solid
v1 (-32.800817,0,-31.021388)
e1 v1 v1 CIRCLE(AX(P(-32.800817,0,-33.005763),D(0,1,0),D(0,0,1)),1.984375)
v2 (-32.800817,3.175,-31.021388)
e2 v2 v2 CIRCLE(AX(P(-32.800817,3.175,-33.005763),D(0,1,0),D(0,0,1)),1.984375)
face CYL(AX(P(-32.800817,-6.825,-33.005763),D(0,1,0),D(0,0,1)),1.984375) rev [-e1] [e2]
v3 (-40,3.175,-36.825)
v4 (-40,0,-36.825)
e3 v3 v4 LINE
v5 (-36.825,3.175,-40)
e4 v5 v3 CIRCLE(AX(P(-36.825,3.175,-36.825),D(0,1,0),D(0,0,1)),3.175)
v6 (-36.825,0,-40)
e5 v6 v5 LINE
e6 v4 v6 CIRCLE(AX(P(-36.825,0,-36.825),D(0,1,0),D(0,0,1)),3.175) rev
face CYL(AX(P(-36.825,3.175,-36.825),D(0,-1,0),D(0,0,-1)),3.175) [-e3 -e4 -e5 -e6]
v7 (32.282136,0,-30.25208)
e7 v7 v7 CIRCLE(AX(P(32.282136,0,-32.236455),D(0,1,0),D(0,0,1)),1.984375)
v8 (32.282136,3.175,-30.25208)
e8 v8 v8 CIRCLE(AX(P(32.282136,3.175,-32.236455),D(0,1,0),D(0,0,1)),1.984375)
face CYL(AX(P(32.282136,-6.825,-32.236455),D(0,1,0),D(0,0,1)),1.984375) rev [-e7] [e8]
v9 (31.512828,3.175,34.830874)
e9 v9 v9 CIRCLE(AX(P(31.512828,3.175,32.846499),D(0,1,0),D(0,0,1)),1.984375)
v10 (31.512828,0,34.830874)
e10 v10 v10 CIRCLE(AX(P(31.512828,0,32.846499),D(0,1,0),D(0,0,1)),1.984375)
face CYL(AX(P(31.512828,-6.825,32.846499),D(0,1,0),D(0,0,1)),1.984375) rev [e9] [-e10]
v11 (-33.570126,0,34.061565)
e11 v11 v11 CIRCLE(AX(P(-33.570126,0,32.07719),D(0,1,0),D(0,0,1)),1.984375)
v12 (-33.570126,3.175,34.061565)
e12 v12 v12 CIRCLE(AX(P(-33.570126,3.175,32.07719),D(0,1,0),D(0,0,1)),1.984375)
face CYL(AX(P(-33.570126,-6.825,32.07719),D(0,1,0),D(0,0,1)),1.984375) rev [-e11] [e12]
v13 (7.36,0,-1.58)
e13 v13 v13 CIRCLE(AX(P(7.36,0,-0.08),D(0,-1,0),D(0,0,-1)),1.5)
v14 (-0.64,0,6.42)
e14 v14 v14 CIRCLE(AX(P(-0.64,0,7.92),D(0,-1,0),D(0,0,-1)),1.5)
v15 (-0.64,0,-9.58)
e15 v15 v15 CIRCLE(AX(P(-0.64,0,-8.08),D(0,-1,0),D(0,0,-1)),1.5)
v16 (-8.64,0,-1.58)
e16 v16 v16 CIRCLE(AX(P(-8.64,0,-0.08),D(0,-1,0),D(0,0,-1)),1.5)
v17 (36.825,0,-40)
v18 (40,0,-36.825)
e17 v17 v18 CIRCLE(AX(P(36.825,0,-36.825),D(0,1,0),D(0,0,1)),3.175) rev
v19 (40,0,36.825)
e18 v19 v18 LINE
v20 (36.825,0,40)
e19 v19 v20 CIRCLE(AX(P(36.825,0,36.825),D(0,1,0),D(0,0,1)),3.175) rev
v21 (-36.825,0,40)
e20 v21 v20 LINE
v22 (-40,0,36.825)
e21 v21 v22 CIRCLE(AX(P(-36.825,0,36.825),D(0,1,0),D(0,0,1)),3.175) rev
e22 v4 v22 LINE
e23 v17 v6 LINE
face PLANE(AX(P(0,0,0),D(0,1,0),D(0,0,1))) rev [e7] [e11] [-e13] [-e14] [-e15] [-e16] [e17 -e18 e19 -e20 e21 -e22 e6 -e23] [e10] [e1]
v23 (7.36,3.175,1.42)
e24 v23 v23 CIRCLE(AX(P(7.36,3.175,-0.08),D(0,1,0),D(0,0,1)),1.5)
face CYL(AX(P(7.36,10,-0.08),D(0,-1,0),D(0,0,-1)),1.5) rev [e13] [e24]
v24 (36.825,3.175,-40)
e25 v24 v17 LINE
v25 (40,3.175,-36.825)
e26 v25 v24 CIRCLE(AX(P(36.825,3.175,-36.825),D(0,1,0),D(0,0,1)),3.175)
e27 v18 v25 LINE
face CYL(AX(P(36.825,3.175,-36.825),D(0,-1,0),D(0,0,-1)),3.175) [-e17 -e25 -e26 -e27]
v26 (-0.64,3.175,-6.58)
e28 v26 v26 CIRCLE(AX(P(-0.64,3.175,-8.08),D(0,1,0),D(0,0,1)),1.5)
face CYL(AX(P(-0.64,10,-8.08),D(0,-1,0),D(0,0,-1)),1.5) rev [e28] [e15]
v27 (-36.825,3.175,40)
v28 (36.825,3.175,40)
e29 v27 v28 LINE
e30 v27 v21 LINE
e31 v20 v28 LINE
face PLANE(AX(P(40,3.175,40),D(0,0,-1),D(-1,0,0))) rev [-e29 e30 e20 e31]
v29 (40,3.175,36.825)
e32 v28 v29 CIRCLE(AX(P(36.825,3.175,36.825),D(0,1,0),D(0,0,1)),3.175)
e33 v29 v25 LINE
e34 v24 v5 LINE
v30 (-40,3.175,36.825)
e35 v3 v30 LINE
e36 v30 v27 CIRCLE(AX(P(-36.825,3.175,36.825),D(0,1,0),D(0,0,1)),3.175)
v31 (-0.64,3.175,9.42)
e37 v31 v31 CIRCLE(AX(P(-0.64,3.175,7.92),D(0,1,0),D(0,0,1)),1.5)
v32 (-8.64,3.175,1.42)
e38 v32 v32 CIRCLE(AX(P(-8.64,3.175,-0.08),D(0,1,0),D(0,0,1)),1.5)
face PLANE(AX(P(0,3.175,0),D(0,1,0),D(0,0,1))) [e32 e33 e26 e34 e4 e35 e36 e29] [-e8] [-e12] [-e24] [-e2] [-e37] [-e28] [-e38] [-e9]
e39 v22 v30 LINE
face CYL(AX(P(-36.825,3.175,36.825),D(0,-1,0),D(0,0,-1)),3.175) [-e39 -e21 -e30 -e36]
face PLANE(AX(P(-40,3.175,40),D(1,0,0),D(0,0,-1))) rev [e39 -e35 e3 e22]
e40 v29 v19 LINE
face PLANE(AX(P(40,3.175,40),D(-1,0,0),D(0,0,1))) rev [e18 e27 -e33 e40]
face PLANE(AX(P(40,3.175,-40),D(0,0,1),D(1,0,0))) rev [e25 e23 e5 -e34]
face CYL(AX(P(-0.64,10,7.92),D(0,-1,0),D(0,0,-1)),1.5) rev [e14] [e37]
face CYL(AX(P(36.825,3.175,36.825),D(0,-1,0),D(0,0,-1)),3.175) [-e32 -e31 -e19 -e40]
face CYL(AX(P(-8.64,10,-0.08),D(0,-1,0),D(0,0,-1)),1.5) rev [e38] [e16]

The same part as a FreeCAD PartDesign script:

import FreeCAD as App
import Part
import Sketcher
from FreeCAD import Vector
Q = App.Units.Quantity


def edges_at(feature, points):
    """Names of the edges that pass closest to the given points."""
    edges = feature.Shape.Edges
    near = lambda p: min(range(len(edges)), key=lambda i: edges[i].distToShape(Part.Vertex(*p))[0])
    return sorted({f"Edge{near(p) + 1}" for p in points})

doc = App.newDocument("Part")
params = doc.addObject("Spreadsheet::Sheet", "Params")
for row, (alias, value) in enumerate([
    ("sketch1_width", "80 mm"),
    ("pad1_length", "3.175 mm"),
    ("pocket1_length", "10 mm"),
    ("fillet_radius", "3.175 mm"),
    ("sketch3_diameter", "3 mm"),
    ("pocket2_length", "10 mm"),
], start=1):
    params.set(f"A{row}", alias)
    params.set(f"B{row}", "=" + value)
    params.setAlias(f"B{row}", alias)

body = doc.addObject("PartDesign::Body", "Body")

sketch1 = body.newObject("Sketcher::SketchObject", "Sketch")
sketch1.AttachmentSupport = (doc.getObject("XZ_Plane"), [""])
sketch1.MapMode = "FlatFace"
sketch1.addGeometry(Part.LineSegment(Vector(-40, -40, 0), Vector(-40, 40, 0)), False)
sketch1.addGeometry(Part.LineSegment(Vector(-40, 40, 0), Vector(40, 40, 0)), False)
sketch1.addGeometry(Part.LineSegment(Vector(40, 40, 0), Vector(40, -40, 0)), False)
sketch1.addGeometry(Part.LineSegment(Vector(40, -40, 0), Vector(-40, -40, 0)), False)
sketch1.addConstraint(Sketcher.Constraint("Coincident", 0, 2, 1, 1))
sketch1.addConstraint(Sketcher.Constraint("Coincident", 1, 2, 2, 1))
sketch1.addConstraint(Sketcher.Constraint("Coincident", 2, 2, 3, 1))
sketch1.addConstraint(Sketcher.Constraint("Coincident", 3, 2, 0, 1))
sketch1.addConstraint(Sketcher.Constraint("Vertical", 0))
sketch1.addConstraint(Sketcher.Constraint("Horizontal", 1))
sketch1.addConstraint(Sketcher.Constraint("Vertical", 2))
sketch1.addConstraint(Sketcher.Constraint("Horizontal", 3))
sketch1.addConstraint(Sketcher.Constraint("Symmetric", 0, 2, 2, 2, -1, 1))
sketch1.addConstraint(Sketcher.Constraint("Equal", 3, 0))
sketch1.addConstraint(Sketcher.Constraint("DistanceX", 1, 1, 1, 2, Q("80 mm")))
sketch1.setExpression("Constraints[10]", "Params.sketch1_width")
pad1 = body.newObject("PartDesign::Pad", "Pad")
pad1.Profile = sketch1
pad1.setExpression("Length", "Params.pad1_length")
pad1.Reversed = True

sketch2 = body.newObject("Sketcher::SketchObject", "Sketch001")
sketch2.AttachmentSupport = (doc.getObject("XZ_Plane"), [""])
sketch2.MapMode = "FlatFace"
sketch2.AttachmentOffset = App.Placement(Vector(0, 0, -3.175), App.Rotation())
sketch2.addGeometry(Part.Circle(Vector(-32.8, -33, 0), Vector(0, 0, 1), 2), False)
sketch2.addGeometry(Part.Circle(Vector(32.3, -32.2, 0), Vector(0, 0, 1), 2), False)
sketch2.addGeometry(Part.Circle(Vector(31.5, 32.8, 0), Vector(0, 0, 1), 2), False)
sketch2.addGeometry(Part.Circle(Vector(-33.6, 32.1, 0), Vector(0, 0, 1), 2), False)
sketch2.addConstraint(Sketcher.Constraint("Equal", 0, 1))
sketch2.addConstraint(Sketcher.Constraint("Equal", 1, 2))
sketch2.addConstraint(Sketcher.Constraint("Equal", 2, 3))
sketch2.addConstraint(Sketcher.Constraint("Diameter", 0, Q("3.96875 mm")))
sketch2.addConstraint(Sketcher.Constraint("DistanceY", -1, 1, 2, 3, Q("32.846499 mm")))
sketch2.addConstraint(Sketcher.Constraint("DistanceY", -1, 1, 3, 3, Q("32.07719 mm")))
sketch2.addConstraint(Sketcher.Constraint("DistanceY", 0, 3, 1, 3, Q("0.769308 mm")))
sketch2.addConstraint(Sketcher.Constraint("DistanceX", 2, 3, 1, 3, Q("0.769308 mm")))
sketch2.addConstraint(Sketcher.Constraint("DistanceY", 0, 3, 2, 3, Q("65.852262 mm")))
sketch2.addConstraint(Sketcher.Constraint("DistanceX", 3, 3, 0, 3, Q("0.769308 mm")))
sketch2.addConstraint(Sketcher.Constraint("DistanceX", 3, 3, 1, 3, Q("65.852262 mm")))
sketch2.addConstraint(Sketcher.Constraint("DistanceX", 0, 3, -1, 1, Q("32.800817 mm")))
pocket1 = body.newObject("PartDesign::Pocket", "Pocket")
pocket1.Profile = sketch2
pocket1.setExpression("Length", "Params.pocket1_length")
pocket1.Reversed = True
doc.recompute()

fillet = body.newObject("PartDesign::Fillet", "Fillet")
fillet.Base = (pocket1, edges_at(pocket1, [
    (-40, 1.587, -40),
    (40, 1.587, -40),
    (40, 1.587, 40),
    (-40, 1.587, 40),
]))
fillet.setExpression("Radius", "Params.fillet_radius")

sketch3 = body.newObject("Sketcher::SketchObject", "Sketch002")
sketch3.AttachmentSupport = (doc.getObject("XZ_Plane"), [""])
sketch3.MapMode = "FlatFace"
sketch3.addGeometry(Part.Circle(Vector(-0.6, 7.9, 0), Vector(0, 0, 1), 1.5), False)
sketch3.addGeometry(Part.Circle(Vector(7.4, -0.1, 0), Vector(0, 0, 1), 1.5), False)
sketch3.addGeometry(Part.Circle(Vector(-0.6, -8.1, 0), Vector(0, 0, 1), 1.5), False)
sketch3.addGeometry(Part.Circle(Vector(-8.6, -0.1, 0), Vector(0, 0, 1), 1.5), False)
sketch3.addConstraint(Sketcher.Constraint("Equal", 0, 1))
sketch3.addConstraint(Sketcher.Constraint("Equal", 1, 2))
sketch3.addConstraint(Sketcher.Constraint("Equal", 2, 3))
sketch3.addConstraint(Sketcher.Constraint("Horizontal", 1, 3, 3, 3))
sketch3.addConstraint(Sketcher.Constraint("Vertical", 0, 3, 2, 3))
sketch3.addConstraint(Sketcher.Constraint("Diameter", 0, Q("3 mm")))
sketch3.addConstraint(Sketcher.Constraint("DistanceX", 0, 3, 1, 3, Q("8 mm")))
sketch3.addConstraint(Sketcher.Constraint("DistanceY", 1, 3, 0, 3, Q("8 mm")))
sketch3.addConstraint(Sketcher.Constraint("DistanceY", 2, 3, 1, 3, Q("8 mm")))
sketch3.addConstraint(Sketcher.Constraint("DistanceX", 3, 3, 0, 3, Q("8 mm")))
sketch3.addConstraint(Sketcher.Constraint("DistanceX", 0, 3, -1, 1, Q("0.64 mm")))
sketch3.addConstraint(Sketcher.Constraint("DistanceY", -1, 1, 0, 3, Q("7.92 mm")))
sketch3.setExpression("Constraints[5]", "Params.sketch3_diameter")
pocket2 = body.newObject("PartDesign::Pocket", "Pocket001")
pocket2.Profile = sketch3
pocket2.setExpression("Length", "Params.pocket2_length")

doc.recompute()
